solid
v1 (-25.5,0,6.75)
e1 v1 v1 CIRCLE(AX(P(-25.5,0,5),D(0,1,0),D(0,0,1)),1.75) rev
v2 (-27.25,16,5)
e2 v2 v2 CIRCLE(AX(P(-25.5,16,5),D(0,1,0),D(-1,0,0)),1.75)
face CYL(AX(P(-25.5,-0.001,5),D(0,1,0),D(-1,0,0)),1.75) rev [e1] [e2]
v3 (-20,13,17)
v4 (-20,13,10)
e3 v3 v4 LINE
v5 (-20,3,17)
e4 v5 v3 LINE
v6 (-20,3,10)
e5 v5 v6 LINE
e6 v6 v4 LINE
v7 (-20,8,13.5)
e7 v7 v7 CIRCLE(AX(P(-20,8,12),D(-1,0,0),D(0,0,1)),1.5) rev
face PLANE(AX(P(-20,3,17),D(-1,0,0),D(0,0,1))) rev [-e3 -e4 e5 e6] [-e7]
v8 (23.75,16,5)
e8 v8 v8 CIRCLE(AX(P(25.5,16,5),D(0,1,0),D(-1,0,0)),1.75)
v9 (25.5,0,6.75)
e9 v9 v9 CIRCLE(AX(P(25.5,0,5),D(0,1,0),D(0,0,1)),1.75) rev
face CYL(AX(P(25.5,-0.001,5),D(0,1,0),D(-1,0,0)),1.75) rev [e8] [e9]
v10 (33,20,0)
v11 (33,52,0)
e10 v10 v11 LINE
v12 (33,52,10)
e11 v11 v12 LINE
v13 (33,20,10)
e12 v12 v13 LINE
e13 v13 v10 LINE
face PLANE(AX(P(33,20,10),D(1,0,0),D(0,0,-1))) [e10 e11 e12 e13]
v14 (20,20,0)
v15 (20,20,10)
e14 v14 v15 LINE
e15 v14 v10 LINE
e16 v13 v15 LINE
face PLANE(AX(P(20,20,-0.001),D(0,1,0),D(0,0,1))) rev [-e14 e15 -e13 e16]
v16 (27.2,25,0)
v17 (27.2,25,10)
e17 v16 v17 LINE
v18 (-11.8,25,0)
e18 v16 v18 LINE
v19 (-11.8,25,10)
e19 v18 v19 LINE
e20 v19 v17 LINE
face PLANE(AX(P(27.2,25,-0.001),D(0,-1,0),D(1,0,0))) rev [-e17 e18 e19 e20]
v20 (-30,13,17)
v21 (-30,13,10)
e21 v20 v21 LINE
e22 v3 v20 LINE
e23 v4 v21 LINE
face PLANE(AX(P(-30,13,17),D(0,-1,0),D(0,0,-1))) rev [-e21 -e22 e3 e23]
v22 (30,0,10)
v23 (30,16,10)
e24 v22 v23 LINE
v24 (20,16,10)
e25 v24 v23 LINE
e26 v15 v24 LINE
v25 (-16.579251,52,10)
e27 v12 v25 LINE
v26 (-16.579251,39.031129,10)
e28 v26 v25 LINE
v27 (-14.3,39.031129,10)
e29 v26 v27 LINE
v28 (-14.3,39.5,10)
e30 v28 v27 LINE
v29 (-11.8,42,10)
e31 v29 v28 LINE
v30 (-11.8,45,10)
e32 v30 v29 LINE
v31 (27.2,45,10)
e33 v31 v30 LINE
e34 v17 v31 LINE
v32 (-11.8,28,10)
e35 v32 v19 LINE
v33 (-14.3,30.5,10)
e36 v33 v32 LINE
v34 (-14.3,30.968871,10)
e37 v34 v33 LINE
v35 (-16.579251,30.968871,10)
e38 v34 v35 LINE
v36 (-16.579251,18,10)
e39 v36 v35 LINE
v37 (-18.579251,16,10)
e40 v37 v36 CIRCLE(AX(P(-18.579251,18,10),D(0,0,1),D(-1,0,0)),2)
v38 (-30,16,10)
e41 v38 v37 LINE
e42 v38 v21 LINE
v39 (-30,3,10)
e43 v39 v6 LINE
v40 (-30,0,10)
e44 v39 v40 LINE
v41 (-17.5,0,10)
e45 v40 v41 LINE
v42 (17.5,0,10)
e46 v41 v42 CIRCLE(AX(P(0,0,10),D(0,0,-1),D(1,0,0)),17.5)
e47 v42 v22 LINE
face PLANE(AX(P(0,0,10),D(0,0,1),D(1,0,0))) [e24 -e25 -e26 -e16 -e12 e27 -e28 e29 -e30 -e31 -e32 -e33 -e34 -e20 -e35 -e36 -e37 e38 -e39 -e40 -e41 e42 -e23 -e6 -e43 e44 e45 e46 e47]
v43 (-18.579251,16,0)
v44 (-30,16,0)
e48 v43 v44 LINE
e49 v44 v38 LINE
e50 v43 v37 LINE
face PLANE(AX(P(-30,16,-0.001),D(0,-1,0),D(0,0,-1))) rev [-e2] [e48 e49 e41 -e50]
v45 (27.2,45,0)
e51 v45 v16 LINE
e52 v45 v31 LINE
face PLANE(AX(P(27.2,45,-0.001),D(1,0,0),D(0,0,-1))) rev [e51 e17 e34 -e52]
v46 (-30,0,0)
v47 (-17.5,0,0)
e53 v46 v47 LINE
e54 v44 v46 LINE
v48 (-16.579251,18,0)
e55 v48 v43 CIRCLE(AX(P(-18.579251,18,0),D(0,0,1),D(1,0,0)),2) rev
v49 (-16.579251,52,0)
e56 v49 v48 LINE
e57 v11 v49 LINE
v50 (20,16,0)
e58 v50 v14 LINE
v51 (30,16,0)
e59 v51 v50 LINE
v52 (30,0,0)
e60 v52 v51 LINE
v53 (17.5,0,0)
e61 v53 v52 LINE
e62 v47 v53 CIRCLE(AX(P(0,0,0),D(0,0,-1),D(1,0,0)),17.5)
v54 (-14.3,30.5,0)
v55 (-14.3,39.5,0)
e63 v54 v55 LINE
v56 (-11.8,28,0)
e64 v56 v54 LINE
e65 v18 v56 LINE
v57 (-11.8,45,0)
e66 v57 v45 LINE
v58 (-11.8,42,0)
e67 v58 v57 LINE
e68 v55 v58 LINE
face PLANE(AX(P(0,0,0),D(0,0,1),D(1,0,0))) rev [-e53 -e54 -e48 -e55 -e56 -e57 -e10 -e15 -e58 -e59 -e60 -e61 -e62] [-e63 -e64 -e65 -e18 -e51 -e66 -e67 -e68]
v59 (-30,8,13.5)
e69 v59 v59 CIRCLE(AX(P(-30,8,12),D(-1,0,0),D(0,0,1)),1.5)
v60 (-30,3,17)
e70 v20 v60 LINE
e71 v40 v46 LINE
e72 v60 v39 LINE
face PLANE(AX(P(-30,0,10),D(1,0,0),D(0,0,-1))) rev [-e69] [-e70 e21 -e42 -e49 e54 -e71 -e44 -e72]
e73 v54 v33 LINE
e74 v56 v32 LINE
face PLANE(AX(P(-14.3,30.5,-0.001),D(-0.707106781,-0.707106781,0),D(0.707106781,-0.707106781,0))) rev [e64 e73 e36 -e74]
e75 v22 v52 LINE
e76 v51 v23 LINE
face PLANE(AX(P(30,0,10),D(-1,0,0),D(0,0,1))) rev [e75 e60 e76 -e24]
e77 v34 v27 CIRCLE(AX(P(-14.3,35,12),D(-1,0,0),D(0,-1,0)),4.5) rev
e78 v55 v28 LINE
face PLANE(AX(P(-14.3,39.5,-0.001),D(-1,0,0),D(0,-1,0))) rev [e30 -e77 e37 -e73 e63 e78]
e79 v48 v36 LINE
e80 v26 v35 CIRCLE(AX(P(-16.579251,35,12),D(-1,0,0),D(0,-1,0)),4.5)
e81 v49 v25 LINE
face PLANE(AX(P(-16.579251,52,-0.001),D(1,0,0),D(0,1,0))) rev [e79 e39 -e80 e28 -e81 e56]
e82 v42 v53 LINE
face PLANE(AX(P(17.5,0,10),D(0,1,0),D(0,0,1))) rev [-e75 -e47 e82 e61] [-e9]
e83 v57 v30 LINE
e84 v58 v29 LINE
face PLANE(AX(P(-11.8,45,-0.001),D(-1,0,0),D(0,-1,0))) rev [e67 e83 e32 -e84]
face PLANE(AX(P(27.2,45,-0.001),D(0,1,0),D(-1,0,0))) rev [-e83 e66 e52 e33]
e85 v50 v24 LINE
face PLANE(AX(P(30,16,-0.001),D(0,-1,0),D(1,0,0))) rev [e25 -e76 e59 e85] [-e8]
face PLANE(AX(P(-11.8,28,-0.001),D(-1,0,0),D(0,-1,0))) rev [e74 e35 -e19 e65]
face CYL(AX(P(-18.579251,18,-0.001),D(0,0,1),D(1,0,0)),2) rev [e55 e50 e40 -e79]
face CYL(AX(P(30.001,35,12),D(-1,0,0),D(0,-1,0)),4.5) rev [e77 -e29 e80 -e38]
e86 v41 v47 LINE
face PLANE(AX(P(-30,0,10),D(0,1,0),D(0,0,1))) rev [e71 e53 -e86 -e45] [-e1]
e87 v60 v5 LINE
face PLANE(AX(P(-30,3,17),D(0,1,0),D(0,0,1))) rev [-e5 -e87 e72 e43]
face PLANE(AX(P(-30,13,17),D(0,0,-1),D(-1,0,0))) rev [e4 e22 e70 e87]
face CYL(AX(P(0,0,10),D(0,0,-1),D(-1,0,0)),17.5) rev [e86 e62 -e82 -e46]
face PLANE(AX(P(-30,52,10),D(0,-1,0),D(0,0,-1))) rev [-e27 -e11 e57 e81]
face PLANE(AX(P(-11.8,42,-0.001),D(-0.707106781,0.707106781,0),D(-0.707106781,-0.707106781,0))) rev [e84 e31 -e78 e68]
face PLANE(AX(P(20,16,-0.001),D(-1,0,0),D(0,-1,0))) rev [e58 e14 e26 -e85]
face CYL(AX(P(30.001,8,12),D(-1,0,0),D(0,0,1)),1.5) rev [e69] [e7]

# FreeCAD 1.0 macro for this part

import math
import FreeCAD as App
import Part
import Sketcher

V = App.Vector
Q = App.Units.Quantity


def add_polygon(sketch, points):
    """Adds a closed chain of lines whose ends are joined by coincident constraints."""
    first, n = sketch.GeometryCount, len(points)
    for a, b in zip(points, points[1:] + points[:1]):
        sketch.addGeometry(Part.LineSegment(App.Vector(*a, 0), App.Vector(*b, 0)), False)
    for i in range(n):
        sketch.addConstraint(Sketcher.Constraint("Coincident", first + i, 2, first + (i + 1) % n, 1))

doc = App.newDocument("Part")
body = doc.addObject("PartDesign::Body", "Body")

sketch1 = body.newObject("Sketcher::SketchObject", "Sketch")
sketch1.AttachmentSupport = (doc.getObject("XY_Plane"), [""])
sketch1.MapMode = "FlatFace"
sketch1.addGeometry(Part.LineSegment(V(-30, 0, 0), V(-17.5, 0, 0)), False)
sketch1.addGeometry(Part.ArcOfCircle(Part.Circle(V(0, 0, 0), V(0, 0, 1), 17.5), math.radians(0), math.radians(180)), False)
sketch1.addGeometry(Part.LineSegment(V(17.5, 0, 0), V(30, 0, 0)), False)
sketch1.addGeometry(Part.LineSegment(V(30, 0, 0), V(30, 52, 0)), False)
sketch1.addGeometry(Part.LineSegment(V(30, 52, 0), V(-30, 52, 0)), False)
sketch1.addGeometry(Part.LineSegment(V(-30, 52, 0), V(-30, 0, 0)), False)
sketch1.addConstraint(Sketcher.Constraint("Coincident", 0, 2, 1, 2))
sketch1.addConstraint(Sketcher.Constraint("Coincident", 1, 1, 2, 1))
sketch1.addConstraint(Sketcher.Constraint("Coincident", 2, 2, 3, 1))
sketch1.addConstraint(Sketcher.Constraint("Coincident", 3, 2, 4, 1))
sketch1.addConstraint(Sketcher.Constraint("Coincident", 4, 2, 5, 1))
sketch1.addConstraint(Sketcher.Constraint("Coincident", 5, 2, 0, 1))
sketch1.addConstraint(Sketcher.Constraint("Horizontal", 0))
sketch1.addConstraint(Sketcher.Constraint("Horizontal", 2))
sketch1.addConstraint(Sketcher.Constraint("Vertical", 3))
sketch1.addConstraint(Sketcher.Constraint("Horizontal", 4))
sketch1.addConstraint(Sketcher.Constraint("Vertical", 5))
sketch1.addConstraint(Sketcher.Constraint("Coincident", 1, 3, -1, 1))
sketch1.addConstraint(Sketcher.Constraint("Symmetric", 2, 2, 5, 2, -1, 1))
sketch1.addConstraint(Sketcher.Constraint("PointOnObject", 0, 2, -1))
sketch1.addConstraint(Sketcher.Constraint("Radius", 1, Q("17.5 mm")))
sketch1.addConstraint(Sketcher.Constraint("DistanceX", 4, 2, 4, 1, Q("60 mm")))
sketch1.addConstraint(Sketcher.Constraint("DistanceY", 3, 1, 3, 2, Q("52 mm")))
pad1 = body.newObject("PartDesign::Pad", "Pad")
pad1.Profile = sketch1
pad1.Length = 10

sketch2 = body.newObject("Sketcher::SketchObject", "Sketch001")
sketch2.AttachmentSupport = (doc.getObject("XY_Plane"), [""])
sketch2.MapMode = "FlatFace"
sketch2.AttachmentOffset = App.Placement(V(0, 0, 10), App.Rotation())
add_polygon(sketch2, [(20, 20), (20, 16), (30, 16), (30, 20)])
sketch2.addConstraint(Sketcher.Constraint("Vertical", 0))
sketch2.addConstraint(Sketcher.Constraint("Horizontal", 1))
sketch2.addConstraint(Sketcher.Constraint("Vertical", 2))
sketch2.addConstraint(Sketcher.Constraint("Horizontal", 3))
sketch2.addConstraint(Sketcher.Constraint("DistanceX", 1, 1, 1, 2, Q("10 mm")))
sketch2.addConstraint(Sketcher.Constraint("DistanceY", 0, 2, 0, 1, Q("4 mm")))
sketch2.addConstraint(Sketcher.Constraint("DistanceX", -1, 1, 0, 2, Q("20 mm")))
sketch2.addConstraint(Sketcher.Constraint("DistanceY", -1, 1, 0, 2, Q("16 mm")))
pocket1 = body.newObject("PartDesign::Pocket", "Pocket")
pocket1.Profile = sketch2
pocket1.Type = "UpToFirst"

sketch3 = body.newObject("Sketcher::SketchObject", "Sketch002")
sketch3.AttachmentSupport = (doc.getObject("XY_Plane"), [""])
sketch3.MapMode = "FlatFace"
sketch3.AttachmentOffset = App.Placement(V(0, 0, 10), App.Rotation())
add_polygon(sketch3, [(-30, 52), (-30, 16), (-20, 16), (-20, 52)])
sketch3.addConstraint(Sketcher.Constraint("Vertical", 0))
sketch3.addConstraint(Sketcher.Constraint("Horizontal", 1))
sketch3.addConstraint(Sketcher.Constraint("Vertical", 2))
sketch3.addConstraint(Sketcher.Constraint("Horizontal", 3))
sketch3.addConstraint(Sketcher.Constraint("DistanceX", 1, 1, 1, 2, Q("10 mm")))
sketch3.addConstraint(Sketcher.Constraint("DistanceY", 0, 2, 0, 1, Q("36 mm")))
sketch3.addConstraint(Sketcher.Constraint("DistanceX", 0, 2, -1, 1, Q("30 mm")))
sketch3.addConstraint(Sketcher.Constraint("DistanceY", -1, 1, 0, 2, Q("16 mm")))
pocket2 = body.newObject("PartDesign::Pocket", "Pocket001")
pocket2.Profile = sketch3
pocket2.Type = "UpToFirst"

sketch4 = body.newObject("Sketcher::SketchObject", "Sketch003")
sketch4.AttachmentSupport = (doc.getObject("XZ_Plane"), [""])
sketch4.MapMode = "FlatFace"
sketch4.AttachmentOffset = App.Placement(V(0, 0, -16), App.Rotation())
sketch4.addGeometry(Part.Circle(V(-25.5, 5, 0), V(0, 0, 1), 1.75), False)
sketch4.addConstraint(Sketcher.Constraint("Diameter", 0, Q("3.5 mm")))
sketch4.addConstraint(Sketcher.Constraint("DistanceY", -1, 1, 0, 3, Q("5 mm")))
sketch4.addConstraint(Sketcher.Constraint("DistanceX", 0, 3, -1, 1, Q("25.5 mm")))
pocket3 = body.newObject("PartDesign::Pocket", "Pocket002")
pocket3.Profile = sketch4
pocket3.Type = "UpToFirst"
pocket3.Reversed = True

sketch5 = body.newObject("Sketcher::SketchObject", "Sketch004")
sketch5.AttachmentSupport = (doc.getObject("XZ_Plane"), [""])
sketch5.MapMode = "FlatFace"
sketch5.AttachmentOffset = App.Placement(V(0, 0, -16), App.Rotation())
sketch5.addGeometry(Part.Circle(V(25.5, 5, 0), V(0, 0, 1), 1.75), False)
sketch5.addConstraint(Sketcher.Constraint("Diameter", 0, Q("3.5 mm")))
sketch5.addConstraint(Sketcher.Constraint("DistanceY", -1, 1, 0, 3, Q("5 mm")))
sketch5.addConstraint(Sketcher.Constraint("DistanceX", -1, 1, 0, 3, Q("25.5 mm")))
pocket4 = body.newObject("PartDesign::Pocket", "Pocket003")
pocket4.Profile = sketch5
pocket4.Type = "UpToFirst"
pocket4.Reversed = True

sketch6 = body.newObject("Sketcher::SketchObject", "Sketch005")
sketch6.AttachmentSupport = (doc.getObject("XY_Plane"), [""])
sketch6.MapMode = "FlatFace"
sketch6.AttachmentOffset = App.Placement(V(0, 0, 10), App.Rotation())
add_polygon(sketch6, [(-30, 13), (-30, 3), (-20, 3), (-20, 13)])
sketch6.addConstraint(Sketcher.Constraint("Vertical", 0))
sketch6.addConstraint(Sketcher.Constraint("Horizontal", 1))
sketch6.addConstraint(Sketcher.Constraint("Vertical", 2))
sketch6.addConstraint(Sketcher.Constraint("Horizontal", 3))
sketch6.addConstraint(Sketcher.Constraint("Equal", 3, 0))
sketch6.addConstraint(Sketcher.Constraint("DistanceX", 1, 1, 1, 2, Q("10 mm")))
sketch6.addConstraint(Sketcher.Constraint("DistanceX", 0, 2, -1, 1, Q("30 mm")))
sketch6.addConstraint(Sketcher.Constraint("DistanceY", -1, 1, 0, 2, Q("3 mm")))
pad2 = body.newObject("PartDesign::Pad", "Pad001")
pad2.Profile = sketch6
pad2.Length = 7

sketch7 = body.newObject("Sketcher::SketchObject", "Sketch006")
sketch7.AttachmentSupport = (doc.getObject("YZ_Plane"), [""])
sketch7.MapMode = "FlatFace"
sketch7.AttachmentOffset = App.Placement(V(0, 0, -30), App.Rotation())
sketch7.addGeometry(Part.Circle(V(8, 12, 0), V(0, 0, 1), 1.5), False)
sketch7.addConstraint(Sketcher.Constraint("Diameter", 0, Q("3 mm")))
sketch7.addConstraint(Sketcher.Constraint("DistanceX", -1, 1, 0, 3, Q("8 mm")))
sketch7.addConstraint(Sketcher.Constraint("DistanceY", -1, 1, 0, 3, Q("12 mm")))
pocket5 = body.newObject("PartDesign::Pocket", "Pocket004")
pocket5.Profile = sketch7
pocket5.Type = "UpToFirst"
pocket5.Reversed = True

sketch8 = body.newObject("Sketcher::SketchObject", "Sketch007")
sketch8.AttachmentSupport = (doc.getObject("XY_Plane"), [""])
sketch8.MapMode = "FlatFace"
sketch8.AttachmentOffset = App.Placement(V(0, 0, 10), App.Rotation())
sketch8.addGeometry(Part.LineSegment(V(-16.579251, 52, 0), V(-20, 52, 0)), False)
sketch8.addGeometry(Part.LineSegment(V(-20, 52, 0), V(-20, 16, 0)), False)
sketch8.addGeometry(Part.LineSegment(V(-20, 16, 0), V(-18.579251, 16, 0)), False)
sketch8.addGeometry(Part.ArcOfCircle(Part.Circle(V(-18.579251, 18, 0), V(0, 0, 1), 2), math.radians(-90), math.radians(0)), False)
sketch8.addGeometry(Part.LineSegment(V(-16.579251, 18, 0), V(-16.579251, 52, 0)), False)
sketch8.addConstraint(Sketcher.Constraint("Coincident", 0, 2, 1, 1))
sketch8.addConstraint(Sketcher.Constraint("Coincident", 1, 2, 2, 1))
sketch8.addConstraint(Sketcher.Constraint("Tangent", 2, 2, 3, 1))
sketch8.addConstraint(Sketcher.Constraint("Tangent", 3, 2, 4, 1))
sketch8.addConstraint(Sketcher.Constraint("Coincident", 4, 2, 0, 1))
sketch8.addConstraint(Sketcher.Constraint("Horizontal", 0))
sketch8.addConstraint(Sketcher.Constraint("Vertical", 1))
sketch8.addConstraint(Sketcher.Constraint("Horizontal", 2))
sketch8.addConstraint(Sketcher.Constraint("Vertical", 4))
sketch8.addConstraint(Sketcher.Constraint("Radius", 3, Q("2 mm")))
sketch8.addConstraint(Sketcher.Constraint("DistanceY", 1, 2, 1, 1, Q("36 mm")))
sketch8.addConstraint(Sketcher.Constraint("DistanceY", -1, 1, 3, 3, Q("18 mm")))
sketch8.addConstraint(Sketcher.Constraint("DistanceX", 0, 2, -1, 1, Q("20 mm")))
sketch8.addConstraint(Sketcher.Constraint("DistanceX", 0, 2, 0, 1, Q("3.420749 mm")))
pocket6 = body.newObject("PartDesign::Pocket", "Pocket005")
pocket6.Profile = sketch8
pocket6.Type = "UpToFirst"

sketch9 = body.newObject("Sketcher::SketchObject", "Sketch008")
sketch9.AttachmentSupport = (doc.getObject("XY_Plane"), [""])
sketch9.MapMode = "FlatFace"
sketch9.AttachmentOffset = App.Placement(V(0, 0, 10), App.Rotation())
add_polygon(sketch9, [(27.2, 45), (-11.8, 45), (-11.8, 42), (-14.3, 39.5), (-14.3, 30.5), (-11.8, 28), (-11.8, 25), (27.2, 25)])
sketch9.addConstraint(Sketcher.Constraint("Horizontal", 0))
sketch9.addConstraint(Sketcher.Constraint("Vertical", 1))
sketch9.addConstraint(Sketcher.Constraint("Vertical", 3))
sketch9.addConstraint(Sketcher.Constraint("Vertical", 5))
sketch9.addConstraint(Sketcher.Constraint("Horizontal", 6))
sketch9.addConstraint(Sketcher.Constraint("Vertical", 7))
sketch9.addConstraint(Sketcher.Constraint("Perpendicular", 2, 4))
sketch9.addConstraint(Sketcher.Constraint("Vertical", 1, 2, 4, 2))
sketch9.addConstraint(Sketcher.Constraint("Equal", 1, 5))
sketch9.addConstraint(Sketcher.Constraint("Equal", 2, 4))
sketch9.addConstraint(Sketcher.Constraint("DistanceX", 0, 2, 0, 1, Q("39 mm")))
sketch9.addConstraint(Sketcher.Constraint("DistanceY", 1, 2, 1, 1, Q("3 mm")))
sketch9.addConstraint(Sketcher.Constraint("DistanceY", 3, 2, 3, 1, Q("9 mm")))
sketch9.addConstraint(Sketcher.Constraint("DistanceY", 7, 1, 7, 2, Q("20 mm")))
sketch9.addConstraint(Sketcher.Constraint("DistanceY", -1, 1, 0, 2, Q("45 mm")))
sketch9.addConstraint(Sketcher.Constraint("DistanceX", 0, 2, -1, 1, Q("11.8 mm")))
pocket7 = body.newObject("PartDesign::Pocket", "Pocket006")
pocket7.Profile = sketch9
pocket7.Type = "UpToFirst"

sketch10 = body.newObject("Sketcher::SketchObject", "Sketch009")
sketch10.AttachmentSupport = (doc.getObject("YZ_Plane"), [""])
sketch10.MapMode = "FlatFace"
sketch10.AttachmentOffset = App.Placement(V(0, 0, -16.579251), App.Rotation())
sketch10.addGeometry(Part.Circle(V(35, 12, 0), V(0, 0, 1), 4.5), False)
sketch10.addConstraint(Sketcher.Constraint("Diameter", 0, Q("9 mm")))
sketch10.addConstraint(Sketcher.Constraint("DistanceX", -1, 1, 0, 3, Q("35 mm")))
sketch10.addConstraint(Sketcher.Constraint("DistanceY", -1, 1, 0, 3, Q("12 mm")))
pocket8 = body.newObject("PartDesign::Pocket", "Pocket007")
pocket8.Profile = sketch10
pocket8.Length = 2.279251
pocket8.Reversed = True

sketch11 = body.newObject("Sketcher::SketchObject", "Sketch010")
sketch11.AttachmentSupport = (doc.getObject("YZ_Plane"), [""])
sketch11.MapMode = "FlatFace"
sketch11.AttachmentOffset = App.Placement(V(0, 0, 30), App.Rotation())
add_polygon(sketch11, [(52, 10), (20, 10), (20, 0), (52, 0)])
sketch11.addConstraint(Sketcher.Constraint("Horizontal", 0))
sketch11.addConstraint(Sketcher.Constraint("Vertical", 1))
sketch11.addConstraint(Sketcher.Constraint("Horizontal", 2))
sketch11.addConstraint(Sketcher.Constraint("Vertical", 3))
sketch11.addConstraint(Sketcher.Constraint("PointOnObject", 1, 2, -1))
sketch11.addConstraint(Sketcher.Constraint("DistanceX", 0, 2, 0, 1, Q("32 mm")))
sketch11.addConstraint(Sketcher.Constraint("DistanceY", 1, 2, 1, 1, Q("10 mm")))
sketch11.addConstraint(Sketcher.Constraint("DistanceX", -1, 1, 0, 2, Q("20 mm")))
pad3 = body.newObject("PartDesign::Pad", "Pad002")
pad3.Profile = sketch11
pad3.Length = 3

doc.recompute()
